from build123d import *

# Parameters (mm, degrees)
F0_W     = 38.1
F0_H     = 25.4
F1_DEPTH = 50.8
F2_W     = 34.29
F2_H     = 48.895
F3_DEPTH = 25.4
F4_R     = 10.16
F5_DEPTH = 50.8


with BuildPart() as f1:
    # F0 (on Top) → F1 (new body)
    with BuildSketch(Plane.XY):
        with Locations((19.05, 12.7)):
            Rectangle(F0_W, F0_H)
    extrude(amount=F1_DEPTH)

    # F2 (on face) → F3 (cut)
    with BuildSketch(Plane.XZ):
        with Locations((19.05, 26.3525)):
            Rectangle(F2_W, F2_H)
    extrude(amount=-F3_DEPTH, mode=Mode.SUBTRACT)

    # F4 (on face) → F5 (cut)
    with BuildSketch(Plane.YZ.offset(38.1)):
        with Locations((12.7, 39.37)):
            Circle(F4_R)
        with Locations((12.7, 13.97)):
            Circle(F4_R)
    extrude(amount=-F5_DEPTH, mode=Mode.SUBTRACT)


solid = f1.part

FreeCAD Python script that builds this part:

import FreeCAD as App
import Part
import Sketcher
from FreeCAD import Vector
Q = App.Units.Quantity


def add_polygon(sketch, points):
    """Adds a closed chain of lines whose ends are joined by coincident constraints."""
    first, n = sketch.GeometryCount, len(points)
    for a, b in zip(points, points[1:] + points[:1]):
        sketch.addGeometry(Part.LineSegment(App.Vector(*a, 0), App.Vector(*b, 0)), False)
    for i in range(n):
        sketch.addConstraint(Sketcher.Constraint("Coincident", first + i, 2, first + (i + 1) % n, 1))

doc = App.newDocument("Part")
body = doc.addObject("PartDesign::Body", "Body")

# Sketch on XY plane
sketch1 = body.newObject("Sketcher::SketchObject", "Sketch")
sketch1.AttachmentSupport = (doc.getObject("XY_Plane"), [""])
sketch1.MapMode = "FlatFace"
add_polygon(sketch1, [(0, 25.4), (0, 0), (38.1, 0), (38.1, 25.4)])  # lines 0-3
sketch1.addConstraint([
    Sketcher.Constraint("Vertical", 0),
    Sketcher.Constraint("Horizontal", 1),
    Sketcher.Constraint("Vertical", 2),
    Sketcher.Constraint("Horizontal", 3),
    Sketcher.Constraint("Coincident", 0, 2, -1, 1),
    Sketcher.Constraint("DistanceY", 0, 2, 0, 1, Q("1 in")),
    Sketcher.Constraint("DistanceX", 1, 1, 1, 2, Q("1.5 in")),
])
pad1 = body.newObject("PartDesign::Pad", "Pad")
pad1.Profile = sketch1
pad1.Length = Q("2 in")

# Sketch on XZ plane
sketch2 = body.newObject("Sketcher::SketchObject", "Sketch001")
sketch2.AttachmentSupport = (doc.getObject("XZ_Plane"), [""])
sketch2.MapMode = "FlatFace"
add_polygon(sketch2, [(1.905, 50.8), (1.905, 1.905), (36.195, 1.905), (36.195, 50.8)])  # lines 0-3
sketch2.addConstraint([
    Sketcher.Constraint("Vertical", 0),
    Sketcher.Constraint("Horizontal", 1),
    Sketcher.Constraint("Vertical", 2),
    Sketcher.Constraint("Horizontal", 3),
    Sketcher.Constraint("DistanceY", -1, 1, 2, 2, Q("2 in")),
    Sketcher.Constraint("DistanceX", 1, 1, 1, 2, Q("1.35 in")),
    Sketcher.Constraint("DistanceY", 0, 2, 0, 1, Q("1.925 in")),
    Sketcher.Constraint("DistanceX", -1, 1, 0, 2, Q("0.075 in")),
])
pocket1 = body.newObject("PartDesign::Pocket", "Pocket")
pocket1.Profile = sketch2
pocket1.Length = Q("1 in")

# Sketch on YZ plane
sketch3 = body.newObject("Sketcher::SketchObject", "Sketch002")
sketch3.AttachmentSupport = (doc.getObject("YZ_Plane"), [""])
sketch3.MapMode = "FlatFace"
sketch3.AttachmentOffset = App.Placement(Vector(0, 0, 1.5 * 25.4), App.Rotation())
sketch3.addGeometry([
    Part.Circle(Vector(12.7, 39.37, 0), Vector(0, 0, 1), 10.16),
    Part.Circle(Vector(12.7, 13.97, 0), Vector(0, 0, 1), 10.16),
], False)
sketch3.addConstraint([
    Sketcher.Constraint("Equal", 0, 1),
    Sketcher.Constraint("Vertical", 0, 3, 1, 3),
    Sketcher.Constraint("Diameter", 0, Q("0.8 in")),
    Sketcher.Constraint("DistanceY", 1, 3, 0, 3, Q("1 in")),
    Sketcher.Constraint("DistanceX", -1, 1, 0, 3, Q("0.5 in")),
    Sketcher.Constraint("DistanceY", -1, 1, 0, 3, Q("1.55 in")),
])
pocket2 = body.newObject("PartDesign::Pocket", "Pocket001")
pocket2.Profile = sketch3
pocket2.Length = Q("2 in")

doc.recompute()
